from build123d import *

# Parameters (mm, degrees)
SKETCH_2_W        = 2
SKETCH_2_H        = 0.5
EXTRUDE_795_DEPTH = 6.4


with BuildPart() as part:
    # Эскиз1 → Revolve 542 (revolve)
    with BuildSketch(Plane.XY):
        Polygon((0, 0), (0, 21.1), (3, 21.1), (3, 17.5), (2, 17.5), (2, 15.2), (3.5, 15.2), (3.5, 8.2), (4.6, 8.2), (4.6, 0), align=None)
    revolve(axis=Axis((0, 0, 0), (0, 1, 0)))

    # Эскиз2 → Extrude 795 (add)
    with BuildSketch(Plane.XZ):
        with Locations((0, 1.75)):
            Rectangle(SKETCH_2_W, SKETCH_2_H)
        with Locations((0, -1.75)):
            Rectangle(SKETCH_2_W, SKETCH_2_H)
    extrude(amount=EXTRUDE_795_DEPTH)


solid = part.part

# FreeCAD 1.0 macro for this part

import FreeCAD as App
import Part
import Sketcher


def add_polygon(sketch, points):
    """Adds a closed chain of lines whose ends are joined by coincident constraints."""
    first, n = sketch.GeometryCount, len(points)
    for a, b in zip(points, points[1:] + points[:1]):
        sketch.addGeometry(Part.LineSegment(App.Vector(*a, 0), App.Vector(*b, 0)), False)
    for i in range(n):
        sketch.addConstraint(Sketcher.Constraint("Coincident", first + i, 2, first + (i + 1) % n, 1))

doc = App.newDocument("Part")
body = doc.addObject("PartDesign::Body", "Body")

sketch1 = doc.addObject("Sketcher::SketchObject", "Sketch")
body.addObject(sketch1)
sketch1.AttachmentSupport = (doc.XY_Plane, [""])
sketch1.MapMode = "FlatFace"
add_polygon(sketch1, [(0, 21.1), (0, 0), (4.6, 0), (4.6, 8.2), (3.5, 8.2), (3.5, 15.2), (2, 15.2), (2, 17.5), (3, 17.5), (3, 21.1)])
sketch1.addConstraint([
    Sketcher.Constraint("Vertical", 0),
    Sketcher.Constraint("Horizontal", 1),
    Sketcher.Constraint("Vertical", 2),
    Sketcher.Constraint("Horizontal", 3),
    Sketcher.Constraint("Vertical", 4),
    Sketcher.Constraint("Horizontal", 5),
    Sketcher.Constraint("Vertical", 6),
    Sketcher.Constraint("Horizontal", 7),
    Sketcher.Constraint("Vertical", 8),
    Sketcher.Constraint("Horizontal", 9),
    Sketcher.Constraint("Coincident", 0, 2, -1, 1),
    Sketcher.Constraint("DistanceX", 7, 1, 7, 2, 1.0),
    Sketcher.Constraint("DistanceX", 9, 2, 9, 1, 3.0),
    Sketcher.Constraint("DistanceY", 4, 1, 4, 2, 7.0),
    Sketcher.Constraint("DistanceX", 1, 1, 1, 2, 4.6),
    Sketcher.Constraint("DistanceX", 3, 2, 3, 1, 1.1),
    Sketcher.Constraint("DistanceY", 0, 2, 0, 1, 21.1),
    Sketcher.Constraint("DistanceY", 2, 1, 2, 2, 8.2),
    Sketcher.Constraint("DistanceY", 6, 1, 6, 2, 2.3),
])
revolution = doc.addObject("PartDesign::Revolution", "Revolution")
body.addObject(revolution)
revolution.Profile = sketch1
revolution.ReferenceAxis = (sketch1, ["V_Axis"])
revolution.Angle = 360

sketch2 = doc.addObject("Sketcher::SketchObject", "Sketch001")
body.addObject(sketch2)
sketch2.AttachmentSupport = (doc.XZ_Plane, [""])
sketch2.MapMode = "FlatFace"
add_polygon(sketch2, [(-1, 2), (-1, 1.5), (1, 1.5), (1, 2)])
add_polygon(sketch2, [(-1, -1.5), (-1, -2), (1, -2), (1, -1.5)])
sketch2.addConstraint([
    Sketcher.Constraint("Vertical", 0),
    Sketcher.Constraint("Horizontal", 1),
    Sketcher.Constraint("Vertical", 2),
    Sketcher.Constraint("Horizontal", 3),
    Sketcher.Constraint("Vertical", 4),
    Sketcher.Constraint("Horizontal", 5),
    Sketcher.Constraint("Vertical", 6),
    Sketcher.Constraint("Horizontal", 7),
    Sketcher.Constraint("Symmetric", 2, 2, 4, 2, -1, 1),
    Sketcher.Constraint("Symmetric", 0, 2, 6, 2, -1, 1),
    Sketcher.Constraint("Vertical", 3, 2, 4, 2),
    Sketcher.Constraint("DistanceX", 1, 1, 1, 2, 2.0),
    Sketcher.Constraint("DistanceY", 0, 2, 0, 1, 0.5),
    Sketcher.Constraint("DistanceY", -1, 1, 2, 2, 2.0),
])
pad1 = doc.addObject("PartDesign::Pad", "Pad")
body.addObject(pad1)
pad1.Profile = sketch2
pad1.Length = 6.4

doc.recompute()
